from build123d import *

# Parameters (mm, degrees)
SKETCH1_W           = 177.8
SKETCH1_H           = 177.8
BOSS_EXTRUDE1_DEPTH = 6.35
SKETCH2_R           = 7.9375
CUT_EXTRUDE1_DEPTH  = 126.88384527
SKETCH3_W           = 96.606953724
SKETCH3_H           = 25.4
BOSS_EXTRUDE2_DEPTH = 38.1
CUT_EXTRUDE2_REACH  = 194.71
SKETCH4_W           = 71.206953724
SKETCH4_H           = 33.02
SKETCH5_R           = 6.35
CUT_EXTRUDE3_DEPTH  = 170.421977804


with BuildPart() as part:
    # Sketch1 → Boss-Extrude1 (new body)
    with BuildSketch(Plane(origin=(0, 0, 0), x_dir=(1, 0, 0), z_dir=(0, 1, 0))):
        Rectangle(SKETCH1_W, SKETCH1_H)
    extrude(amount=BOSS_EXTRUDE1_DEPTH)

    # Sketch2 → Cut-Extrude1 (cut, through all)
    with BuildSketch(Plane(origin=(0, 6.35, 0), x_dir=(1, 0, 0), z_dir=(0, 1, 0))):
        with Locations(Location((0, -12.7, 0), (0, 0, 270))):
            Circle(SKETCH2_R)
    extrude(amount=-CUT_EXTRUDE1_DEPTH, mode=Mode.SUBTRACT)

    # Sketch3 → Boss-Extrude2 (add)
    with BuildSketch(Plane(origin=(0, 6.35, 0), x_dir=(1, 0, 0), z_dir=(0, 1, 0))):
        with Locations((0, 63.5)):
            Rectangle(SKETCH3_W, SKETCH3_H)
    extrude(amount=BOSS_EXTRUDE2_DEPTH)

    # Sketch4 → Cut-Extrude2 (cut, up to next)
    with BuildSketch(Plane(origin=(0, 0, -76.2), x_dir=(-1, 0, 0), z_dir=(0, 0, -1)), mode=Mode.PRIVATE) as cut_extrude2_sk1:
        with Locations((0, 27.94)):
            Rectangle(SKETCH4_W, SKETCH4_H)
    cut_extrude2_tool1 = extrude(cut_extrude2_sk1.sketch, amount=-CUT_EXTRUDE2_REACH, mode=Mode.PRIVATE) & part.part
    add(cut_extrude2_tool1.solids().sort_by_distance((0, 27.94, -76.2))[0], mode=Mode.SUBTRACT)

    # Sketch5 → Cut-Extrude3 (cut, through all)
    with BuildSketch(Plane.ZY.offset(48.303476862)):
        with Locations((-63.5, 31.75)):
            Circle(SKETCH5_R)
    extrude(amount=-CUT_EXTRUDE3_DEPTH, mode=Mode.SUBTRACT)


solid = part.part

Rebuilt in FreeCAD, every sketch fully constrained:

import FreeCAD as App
import Part
import Sketcher
Q = App.Units.Quantity


def add_polygon(sketch, points):
    """Adds a closed chain of lines whose ends are joined by coincident constraints."""
    first, n = sketch.GeometryCount, len(points)
    for a, b in zip(points, points[1:] + points[:1]):
        sketch.addGeometry(Part.LineSegment(App.Vector(*a, 0), App.Vector(*b, 0)), False)
    for i in range(n):
        sketch.addConstraint(Sketcher.Constraint("Coincident", first + i, 2, first + (i + 1) % n, 1))

doc = App.newDocument("Part")
body = doc.addObject("PartDesign::Body", "Body")

# Sketch on XZ plane
sketch1 = body.newObject("Sketcher::SketchObject", "Sketch")
sketch1.AttachmentSupport = (doc.getObject("XZ_Plane"), [""])
sketch1.MapMode = "FlatFace"
add_polygon(sketch1, [(-89, -89), (-89, 89), (89, 89), (89, -89)])  # lines 0-3
sketch1.addConstraint([
    Sketcher.Constraint("Vertical", 0),
    Sketcher.Constraint("Horizontal", 1),
    Sketcher.Constraint("Vertical", 2),
    Sketcher.Constraint("Horizontal", 3),
    Sketcher.Constraint("Symmetric", 0, 2, 2, 2, -1, 1),
    Sketcher.Constraint("Equal", 3, 0),
    Sketcher.Constraint("DistanceX", 1, 1, 1, 2, Q("7 in")),
])
pad1 = body.newObject("PartDesign::Pad", "Pad")
pad1.Profile = sketch1
pad1.Length = Q("0.25 in")
pad1.Reversed = True

# Sketch on XZ plane
sketch2 = body.newObject("Sketcher::SketchObject", "Sketch001")
sketch2.AttachmentSupport = (doc.getObject("XZ_Plane"), [""])
sketch2.MapMode = "FlatFace"
sketch2.AttachmentOffset = App.Placement(App.Vector(0, 0, -0.25 * 25.4), App.Rotation())
sketch2.addGeometry(Part.Circle(App.Vector(0, 13, 0), App.Vector(0, 0, 1), 8), False)
sketch2.addConstraint([
    Sketcher.Constraint("PointOnObject", 0, 3, -2),
    Sketcher.Constraint("Diameter", 0, Q("0.625 in")),
    Sketcher.Constraint("DistanceY", -1, 1, 0, 3, Q("0.5 in")),
])
pocket1 = body.newObject("PartDesign::Pocket", "Pocket")
pocket1.Profile = sketch2
pocket1.Type = "ThroughAll"
pocket1.Reversed = True

# Sketch on XZ plane
sketch3 = body.newObject("Sketcher::SketchObject", "Sketch002")
sketch3.AttachmentSupport = (doc.getObject("XZ_Plane"), [""])
sketch3.MapMode = "FlatFace"
sketch3.AttachmentOffset = App.Placement(App.Vector(0, 0, -0.25 * 25.4), App.Rotation())
add_polygon(sketch3, [(-48, -76), (-48, -51), (48, -51), (48, -76)])  # lines 0-3
sketch3.addConstraint([
    Sketcher.Constraint("Vertical", 0),
    Sketcher.Constraint("Horizontal", 1),
    Sketcher.Constraint("Vertical", 2),
    Sketcher.Constraint("Horizontal", 3),
    Sketcher.Constraint("DistanceY", 0, 1, 0, 2, Q("1 in")),
    Sketcher.Constraint("DistanceY", 0, 2, -1, 1, Q("2 in")),
    Sketcher.Constraint("DistanceX", 1, 1, 1, 2, 96.606954),
    Sketcher.Constraint("DistanceX", 0, 2, -1, 1, 48.303477),
])
pad2 = body.newObject("PartDesign::Pad", "Pad001")
pad2.Profile = sketch3
pad2.Length = Q("1.5 in")
pad2.Reversed = True

# Sketch on XY plane
sketch4 = body.newObject("Sketcher::SketchObject", "Sketch003")
sketch4.AttachmentSupport = (doc.getObject("XY_Plane"), [""])
sketch4.MapMode = "FlatFace"
sketch4.AttachmentOffset = App.Placement(App.Vector(0, 0, -3 * 25.4), App.Rotation())
add_polygon(sketch4, [(36, 44), (36, 11), (-36, 11), (-36, 44)])  # lines 0-3
sketch4.addConstraint([
    Sketcher.Constraint("Vertical", 0),
    Sketcher.Constraint("Horizontal", 1),
    Sketcher.Constraint("Vertical", 2),
    Sketcher.Constraint("Horizontal", 3),
    Sketcher.Constraint("DistanceY", 0, 2, 0, 1, Q("1.3 in")),
    Sketcher.Constraint("DistanceY", -1, 1, 0, 2, Q("0.45 in")),
    Sketcher.Constraint("DistanceX", 1, 2, 1, 1, 71.206954),
    Sketcher.Constraint("DistanceX", -1, 1, 0, 2, 35.603477),
])
pocket2 = body.newObject("PartDesign::Pocket", "Pocket001")
pocket2.Profile = sketch4
pocket2.Type = "UpToFirst"
pocket2.Reversed = True

# Sketch on YZ plane
sketch5 = body.newObject("Sketcher::SketchObject", "Sketch004")
sketch5.AttachmentSupport = (doc.getObject("YZ_Plane"), [""])
sketch5.MapMode = "FlatFace"
sketch5.AttachmentOffset = App.Placement(App.Vector(0, 0, -48.303477), App.Rotation())
sketch5.addGeometry(Part.Circle(App.Vector(32, -64, 0), App.Vector(0, 0, 1), 6), False)
sketch5.addConstraint([
    Sketcher.Constraint("Diameter", 0, Q("0.5 in")),
    Sketcher.Constraint("DistanceY", 0, 3, -1, 1, Q("2.5 in")),
    Sketcher.Constraint("DistanceX", -1, 1, 0, 3, Q("1.25 in")),
])
pocket3 = body.newObject("PartDesign::Pocket", "Pocket002")
pocket3.Profile = sketch5
pocket3.Type = "ThroughAll"
pocket3.Reversed = True

doc.recompute()
